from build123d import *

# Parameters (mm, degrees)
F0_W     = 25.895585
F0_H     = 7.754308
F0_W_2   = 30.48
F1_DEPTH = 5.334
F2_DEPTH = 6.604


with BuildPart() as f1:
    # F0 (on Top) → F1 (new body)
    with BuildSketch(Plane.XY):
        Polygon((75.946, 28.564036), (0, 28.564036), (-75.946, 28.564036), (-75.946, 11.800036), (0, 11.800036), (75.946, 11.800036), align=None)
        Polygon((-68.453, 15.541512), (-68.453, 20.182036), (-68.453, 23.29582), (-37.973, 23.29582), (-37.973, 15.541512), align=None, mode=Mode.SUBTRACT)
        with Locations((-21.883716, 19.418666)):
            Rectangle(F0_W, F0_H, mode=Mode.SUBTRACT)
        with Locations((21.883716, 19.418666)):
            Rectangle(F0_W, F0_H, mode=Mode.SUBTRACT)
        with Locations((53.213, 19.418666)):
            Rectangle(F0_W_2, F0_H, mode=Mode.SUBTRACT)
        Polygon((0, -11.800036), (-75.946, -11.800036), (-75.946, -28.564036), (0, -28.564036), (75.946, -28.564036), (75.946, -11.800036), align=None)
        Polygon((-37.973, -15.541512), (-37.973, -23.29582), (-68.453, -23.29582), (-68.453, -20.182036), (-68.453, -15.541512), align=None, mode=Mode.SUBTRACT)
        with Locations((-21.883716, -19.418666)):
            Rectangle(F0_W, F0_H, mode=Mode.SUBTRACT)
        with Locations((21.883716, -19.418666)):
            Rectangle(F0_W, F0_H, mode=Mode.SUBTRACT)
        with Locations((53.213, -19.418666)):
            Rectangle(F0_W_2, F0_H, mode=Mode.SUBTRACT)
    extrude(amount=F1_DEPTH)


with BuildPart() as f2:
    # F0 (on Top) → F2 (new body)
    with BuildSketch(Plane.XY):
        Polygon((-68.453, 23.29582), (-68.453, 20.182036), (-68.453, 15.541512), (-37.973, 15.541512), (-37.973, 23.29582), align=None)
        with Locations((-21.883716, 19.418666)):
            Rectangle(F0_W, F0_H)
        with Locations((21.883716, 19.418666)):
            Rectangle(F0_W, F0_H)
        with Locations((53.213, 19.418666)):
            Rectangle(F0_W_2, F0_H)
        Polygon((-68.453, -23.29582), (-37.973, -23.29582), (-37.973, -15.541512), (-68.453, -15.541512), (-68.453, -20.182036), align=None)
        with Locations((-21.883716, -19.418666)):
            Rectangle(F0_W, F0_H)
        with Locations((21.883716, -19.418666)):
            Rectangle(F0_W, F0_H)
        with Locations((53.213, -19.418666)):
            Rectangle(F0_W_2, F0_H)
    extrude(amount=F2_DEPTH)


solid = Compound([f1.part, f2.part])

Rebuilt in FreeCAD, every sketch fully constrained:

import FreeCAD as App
import Part
import Sketcher

V = App.Vector
Q = App.Units.Quantity


def add_polygon(sketch, points):
    """Adds a closed chain of lines whose ends are joined by coincident constraints."""
    first, n = sketch.GeometryCount, len(points)
    for a, b in zip(points, points[1:] + points[:1]):
        sketch.addGeometry(Part.LineSegment(App.Vector(*a, 0), App.Vector(*b, 0)), False)
    for i in range(n):
        sketch.addConstraint(Sketcher.Constraint("Coincident", first + i, 2, first + (i + 1) % n, 1))

doc = App.newDocument("Part")
body = doc.addObject("PartDesign::Body", "Body")
body.AllowCompound = True

# Sketch on XY plane
sketch1 = doc.addObject("Sketcher::SketchObject", "Sketch")
body.addObject(sketch1)
sketch1.AttachmentSupport = (doc.XY_Plane, [""])
sketch1.MapMode = "FlatFace"
add_polygon(sketch1, [(76, 29), (-76, 29), (-76, 12), (76, 12)])  # lines 0-3
add_polygon(sketch1, [(-38, 16), (-68, 16), (-68, 23), (-38, 23)])  # lines 4-7
add_polygon(sketch1, [(-9, 16), (-35, 16), (-35, 23), (-9, 23)])  # lines 8-11
add_polygon(sketch1, [(35, 16), (9, 16), (9, 23), (35, 23)])  # lines 12-15
add_polygon(sketch1, [(68, 16), (38, 16), (38, 23), (68, 23)])  # lines 16-19
add_polygon(sketch1, [(-76, -12), (-76, -29), (76, -29), (76, -12)])  # lines 20-23
add_polygon(sketch1, [(-9, -23), (-35, -23), (-35, -16), (-9, -16)])  # lines 24-27
add_polygon(sketch1, [(35, -23), (9, -23), (9, -16), (35, -16)])  # lines 28-31
add_polygon(sketch1, [(68, -23), (38, -23), (38, -16), (68, -16)])  # lines 32-35
add_polygon(sketch1, [(-68, -16), (-38, -16), (-38, -23), (-68, -23)])  # lines 36-39
sketch1.addConstraint([
    Sketcher.Constraint("Horizontal", 0),
    Sketcher.Constraint("Vertical", 1),
    Sketcher.Constraint("Horizontal", 2),
    Sketcher.Constraint("Vertical", 3),
    Sketcher.Constraint("Horizontal", 4),
    Sketcher.Constraint("Vertical", 5),
    Sketcher.Constraint("Horizontal", 6),
    Sketcher.Constraint("Vertical", 7),
    Sketcher.Constraint("Horizontal", 8),
    Sketcher.Constraint("Vertical", 9),
    Sketcher.Constraint("Horizontal", 10),
    Sketcher.Constraint("Vertical", 11),
    Sketcher.Constraint("Horizontal", 12),
    Sketcher.Constraint("Vertical", 13),
    Sketcher.Constraint("Horizontal", 14),
    Sketcher.Constraint("Vertical", 15),
    Sketcher.Constraint("Horizontal", 16),
    Sketcher.Constraint("Vertical", 17),
    Sketcher.Constraint("Horizontal", 18),
    Sketcher.Constraint("Vertical", 19),
    Sketcher.Constraint("Vertical", 20),
    Sketcher.Constraint("Horizontal", 21),
    Sketcher.Constraint("Vertical", 22),
    Sketcher.Constraint("Horizontal", 23),
    Sketcher.Constraint("Horizontal", 24),
    Sketcher.Constraint("Vertical", 25),
    Sketcher.Constraint("Horizontal", 26),
    Sketcher.Constraint("Vertical", 27),
    Sketcher.Constraint("Horizontal", 28),
    Sketcher.Constraint("Vertical", 29),
    Sketcher.Constraint("Horizontal", 30),
    Sketcher.Constraint("Vertical", 31),
    Sketcher.Constraint("Horizontal", 32),
    Sketcher.Constraint("Vertical", 33),
    Sketcher.Constraint("Horizontal", 34),
    Sketcher.Constraint("Vertical", 35),
    Sketcher.Constraint("Horizontal", 36),
    Sketcher.Constraint("Vertical", 37),
    Sketcher.Constraint("Horizontal", 38),
    Sketcher.Constraint("Vertical", 39),
    Sketcher.Constraint("Symmetric", 3, 2, 20, 2, -1, 1),
    Sketcher.Constraint("Symmetric", 1, 2, 22, 2, -1, 1),
    Sketcher.Constraint("Symmetric", 14, 2, 24, 2, -1, 1),
    Sketcher.Constraint("Symmetric", 12, 2, 26, 2, -1, 1),
    Sketcher.Constraint("Symmetric", 10, 2, 28, 2, -1, 1),
    Sketcher.Constraint("Symmetric", 8, 2, 30, 2, -1, 1),
    Sketcher.Constraint("Symmetric", 6, 2, 32, 2, -1, 1),
    Sketcher.Constraint("Symmetric", 4, 2, 34, 2, -1, 1),
    Sketcher.Constraint("Symmetric", 16, 2, 36, 2, -1, 1),
    Sketcher.Constraint("Symmetric", 18, 2, 38, 2, -1, 1),
    Sketcher.Constraint("Symmetric", 11, 2, 12, 2, -2),
    Sketcher.Constraint("Symmetric", 9, 2, 14, 2, -2),
    Sketcher.Constraint("Symmetric", 7, 2, 16, 2, -2),
    Sketcher.Constraint("Symmetric", 5, 2, 18, 2, -2),
    Sketcher.Constraint("Horizontal", 7, 2, 8, 2),
    Sketcher.Constraint("Horizontal", 6, 2, 9, 2),
    Sketcher.Constraint("Vertical", 1, 2, 20, 2),
    Sketcher.Constraint("DistanceX", 4, 2, 4, 1, Q("1.2 in")),
    Sketcher.Constraint("DistanceX", 0, 2, 0, 1, Q("5.98 in")),
    Sketcher.Constraint("DistanceY", 1, 2, 1, 1, Q("0.66 in")),
    Sketcher.Constraint("DistanceX", 4, 2, -1, 1, Q("2.695 in")),
    Sketcher.Constraint("DistanceX", 8, 2, 8, 1, Q("25.895585 mm")),
    Sketcher.Constraint("DistanceY", 5, 1, 5, 2, Q("7.754308 mm")),
    Sketcher.Constraint("DistanceY", -1, 1, 5, 2, Q("23.29582 mm")),
    Sketcher.Constraint("DistanceX", 8, 2, -1, 1, Q("34.831508 mm")),
    Sketcher.Constraint("DistanceY", 22, 2, 19, 2, Q("27.341548 mm")),
])
pad1 = doc.addObject("PartDesign::Pad", "Pad")
body.addObject(pad1)
pad1.Profile = sketch1
pad1.Length = Q("0.21 in")
body2 = doc.addObject("PartDesign::Body", "Body001")
body2.AllowCompound = True

# Sketch on XY plane
sketch2 = doc.addObject("Sketcher::SketchObject", "Sketch001")
body2.addObject(sketch2)
sketch2.AttachmentSupport = (doc.getObject("XY_Plane001"), [""])
sketch2.MapMode = "FlatFace"
add_polygon(sketch2, [(-68, 23), (-68, 16), (-38, 16), (-38, 23)])  # lines 0-3
add_polygon(sketch2, [(-35, 23), (-35, 16), (-9, 16), (-9, 23)])  # lines 4-7
add_polygon(sketch2, [(9, 23), (9, 16), (35, 16), (35, 23)])  # lines 8-11
add_polygon(sketch2, [(38, 23), (38, 16), (68, 16), (68, 23)])  # lines 12-15
add_polygon(sketch2, [(-68, -23), (-38, -23), (-38, -16), (-68, -16)])  # lines 16-19
add_polygon(sketch2, [(-35, -16), (-35, -23), (-9, -23), (-9, -16)])  # lines 20-23
add_polygon(sketch2, [(9, -16), (9, -23), (35, -23), (35, -16)])  # lines 24-27
add_polygon(sketch2, [(38, -16), (38, -23), (68, -23), (68, -16)])  # lines 28-31
sketch2.addConstraint([
    Sketcher.Constraint("Vertical", 0),
    Sketcher.Constraint("Horizontal", 1),
    Sketcher.Constraint("Vertical", 2),
    Sketcher.Constraint("Horizontal", 3),
    Sketcher.Constraint("Vertical", 4),
    Sketcher.Constraint("Horizontal", 5),
    Sketcher.Constraint("Vertical", 6),
    Sketcher.Constraint("Horizontal", 7),
    Sketcher.Constraint("Vertical", 8),
    Sketcher.Constraint("Horizontal", 9),
    Sketcher.Constraint("Vertical", 10),
    Sketcher.Constraint("Horizontal", 11),
    Sketcher.Constraint("Vertical", 12),
    Sketcher.Constraint("Horizontal", 13),
    Sketcher.Constraint("Vertical", 14),
    Sketcher.Constraint("Horizontal", 15),
    Sketcher.Constraint("Horizontal", 16),
    Sketcher.Constraint("Vertical", 17),
    Sketcher.Constraint("Horizontal", 18),
    Sketcher.Constraint("Vertical", 19),
    Sketcher.Constraint("Vertical", 20),
    Sketcher.Constraint("Horizontal", 21),
    Sketcher.Constraint("Vertical", 22),
    Sketcher.Constraint("Horizontal", 23),
    Sketcher.Constraint("Vertical", 24),
    Sketcher.Constraint("Horizontal", 25),
    Sketcher.Constraint("Vertical", 26),
    Sketcher.Constraint("Horizontal", 27),
    Sketcher.Constraint("Vertical", 28),
    Sketcher.Constraint("Horizontal", 29),
    Sketcher.Constraint("Vertical", 30),
    Sketcher.Constraint("Horizontal", 31),
    Sketcher.Constraint("Symmetric", 15, 2, 16, 2, -1, 1),
    Sketcher.Constraint("Symmetric", 13, 2, 18, 2, -1, 1),
    Sketcher.Constraint("Symmetric", 10, 2, 20, 2, -1, 1),
    Sketcher.Constraint("Symmetric", 8, 2, 22, 2, -1, 1),
    Sketcher.Constraint("Symmetric", 6, 2, 24, 2, -1, 1),
    Sketcher.Constraint("Symmetric", 4, 2, 26, 2, -1, 1),
    Sketcher.Constraint("Symmetric", 2, 2, 28, 2, -1, 1),
    Sketcher.Constraint("Symmetric", 0, 2, 30, 2, -1, 1),
    Sketcher.Constraint("Symmetric", 5, 2, 8, 2, -2),
    Sketcher.Constraint("Symmetric", 7, 2, 10, 2, -2),
    Sketcher.Constraint("Symmetric", 1, 2, 12, 2, -2),
    Sketcher.Constraint("Symmetric", 3, 2, 14, 2, -2),
    Sketcher.Constraint("Horizontal", 1, 2, 4, 2),
    Sketcher.Constraint("Horizontal", 3, 2, 6, 2),
    Sketcher.Constraint("DistanceX", 1, 1, 1, 2, Q("1.2 in")),
    Sketcher.Constraint("DistanceX", 0, 2, -1, 1, Q("2.695 in")),
    Sketcher.Constraint("DistanceX", 5, 1, 5, 2, Q("25.895585 mm")),
    Sketcher.Constraint("DistanceY", 0, 2, 0, 1, Q("7.754308 mm")),
    Sketcher.Constraint("DistanceY", -1, 1, 2, 2, Q("23.29582 mm")),
    Sketcher.Constraint("DistanceX", 4, 2, -1, 1, Q("34.831508 mm")),
])
pad2 = doc.addObject("PartDesign::Pad", "Pad001")
body2.addObject(pad2)
pad2.Profile = sketch2
pad2.Length = Q("0.26 in")

doc.recompute()
